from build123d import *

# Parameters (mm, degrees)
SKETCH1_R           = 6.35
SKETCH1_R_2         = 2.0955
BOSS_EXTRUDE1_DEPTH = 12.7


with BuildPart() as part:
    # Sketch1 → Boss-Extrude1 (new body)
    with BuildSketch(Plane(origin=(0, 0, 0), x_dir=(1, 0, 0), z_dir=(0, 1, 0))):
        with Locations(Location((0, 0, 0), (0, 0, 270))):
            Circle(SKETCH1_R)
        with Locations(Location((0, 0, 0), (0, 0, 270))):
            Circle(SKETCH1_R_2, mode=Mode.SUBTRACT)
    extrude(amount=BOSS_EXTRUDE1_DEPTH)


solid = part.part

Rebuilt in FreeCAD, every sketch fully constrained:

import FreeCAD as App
import Part
import Sketcher
from FreeCAD import Vector
Q = App.Units.Quantity

doc = App.newDocument("Part")
params = doc.addObject("Spreadsheet::Sheet", "Params")
for row, (alias, value) in enumerate([
    ("sketch1_diameter", "0.5 in"),
    ("sketch1_diameter2", "0.165 in"),
    ("pad1_length", "0.5 in"),
], start=1):
    params.set(f"A{row}", alias)
    params.set(f"B{row}", "=" + value)
    params.setAlias(f"B{row}", alias)

body = doc.addObject("PartDesign::Body", "Body")

sketch1 = doc.addObject("Sketcher::SketchObject", "Sketch")
body.addObject(sketch1)
sketch1.AttachmentSupport = (doc.XZ_Plane, [""])
sketch1.MapMode = "FlatFace"
sketch1.addGeometry([
    Part.Circle(Vector(0, 0, 0), Vector(0, 0, 1), 6.3),
    Part.Circle(Vector(0, 0, 0), Vector(0, 0, 1), 2.1),
], False)
sketch1.addConstraint([
    Sketcher.Constraint("Coincident", 0, 3, -1, 1),
    Sketcher.Constraint("Coincident", 1, 3, -1, 1),
    Sketcher.Constraint("Diameter", 0, Q("0.5 in")),
    Sketcher.Constraint("Diameter", 1, Q("0.165 in")),
])
sketch1.setExpression("Constraints[2]", "Params.sketch1_diameter")
sketch1.setExpression("Constraints[3]", "Params.sketch1_diameter2")
pad1 = doc.addObject("PartDesign::Pad", "Pad")
body.addObject(pad1)
pad1.Profile = sketch1
pad1.setExpression("Length", "Params.pad1_length")
pad1.Reversed = True

doc.recompute()
